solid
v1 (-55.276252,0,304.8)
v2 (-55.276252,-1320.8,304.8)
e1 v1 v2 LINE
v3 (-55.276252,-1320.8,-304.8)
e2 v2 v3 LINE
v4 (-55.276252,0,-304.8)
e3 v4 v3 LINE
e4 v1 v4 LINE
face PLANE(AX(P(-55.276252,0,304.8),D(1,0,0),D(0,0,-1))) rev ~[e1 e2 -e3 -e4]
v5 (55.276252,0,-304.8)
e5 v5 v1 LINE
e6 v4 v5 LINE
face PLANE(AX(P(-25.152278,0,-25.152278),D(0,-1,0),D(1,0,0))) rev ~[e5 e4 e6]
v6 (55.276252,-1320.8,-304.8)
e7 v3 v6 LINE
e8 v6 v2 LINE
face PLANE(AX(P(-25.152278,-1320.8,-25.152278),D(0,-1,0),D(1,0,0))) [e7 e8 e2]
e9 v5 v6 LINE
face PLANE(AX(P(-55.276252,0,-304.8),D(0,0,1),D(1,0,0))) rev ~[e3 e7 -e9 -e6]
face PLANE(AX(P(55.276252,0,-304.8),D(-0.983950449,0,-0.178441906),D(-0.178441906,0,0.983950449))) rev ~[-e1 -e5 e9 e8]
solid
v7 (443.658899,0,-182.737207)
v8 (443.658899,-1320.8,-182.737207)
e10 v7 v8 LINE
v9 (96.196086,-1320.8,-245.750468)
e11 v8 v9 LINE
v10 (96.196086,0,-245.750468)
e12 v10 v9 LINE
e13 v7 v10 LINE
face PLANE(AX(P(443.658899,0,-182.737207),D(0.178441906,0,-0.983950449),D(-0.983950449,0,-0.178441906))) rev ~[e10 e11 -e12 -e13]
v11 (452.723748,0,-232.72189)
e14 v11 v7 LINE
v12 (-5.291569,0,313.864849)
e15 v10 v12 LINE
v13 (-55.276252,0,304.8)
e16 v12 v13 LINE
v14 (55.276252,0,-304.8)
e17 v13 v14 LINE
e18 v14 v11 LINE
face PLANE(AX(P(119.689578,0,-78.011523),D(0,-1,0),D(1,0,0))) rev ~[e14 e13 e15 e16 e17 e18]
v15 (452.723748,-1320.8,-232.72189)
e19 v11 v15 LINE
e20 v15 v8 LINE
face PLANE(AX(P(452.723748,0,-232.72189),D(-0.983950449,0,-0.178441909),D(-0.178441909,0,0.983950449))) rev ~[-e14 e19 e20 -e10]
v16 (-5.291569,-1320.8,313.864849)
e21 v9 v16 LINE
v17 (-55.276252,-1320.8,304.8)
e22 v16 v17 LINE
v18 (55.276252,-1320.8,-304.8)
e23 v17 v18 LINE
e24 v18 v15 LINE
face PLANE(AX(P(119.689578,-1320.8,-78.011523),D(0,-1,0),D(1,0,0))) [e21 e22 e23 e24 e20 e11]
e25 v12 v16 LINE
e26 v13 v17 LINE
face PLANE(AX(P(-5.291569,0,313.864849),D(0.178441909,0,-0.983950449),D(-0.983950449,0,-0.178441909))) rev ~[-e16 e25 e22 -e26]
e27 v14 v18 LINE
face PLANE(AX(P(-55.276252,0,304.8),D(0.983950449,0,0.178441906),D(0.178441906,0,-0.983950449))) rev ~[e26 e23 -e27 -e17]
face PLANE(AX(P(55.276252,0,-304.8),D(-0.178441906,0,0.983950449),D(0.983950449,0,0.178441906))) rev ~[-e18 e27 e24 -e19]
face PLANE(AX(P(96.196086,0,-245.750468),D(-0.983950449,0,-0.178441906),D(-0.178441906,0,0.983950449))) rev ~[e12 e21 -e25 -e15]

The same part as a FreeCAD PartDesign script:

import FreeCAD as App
import Part
import Sketcher
Q = App.Units.Quantity


def add_polygon(sketch, points):
    """Adds a closed chain of lines whose ends are joined by coincident constraints."""
    first, n = sketch.GeometryCount, len(points)
    for a, b in zip(points, points[1:] + points[:1]):
        sketch.addGeometry(Part.LineSegment(App.Vector(*a, 0), App.Vector(*b, 0)), False)
    for i in range(n):
        sketch.addConstraint(Sketcher.Constraint("Coincident", first + i, 2, first + (i + 1) % n, 1))

doc = App.newDocument("Part")
body = doc.addObject("PartDesign::Body", "Body")

sketch1 = body.newObject("Sketcher::SketchObject", "Sketch")
sketch1.AttachmentSupport = (doc.getObject("XZ_Plane"), [""])
sketch1.MapMode = "FlatFace"
add_polygon(sketch1, [(-5, 314), (-55, 305), (55, -305), (453, -233), (444, -183), (96, -246)])
sketch1.addConstraint([
    Sketcher.Constraint("Symmetric", 0, 2, 1, 2, -1, 1),
    Sketcher.Constraint("Perpendicular", 0, 1),
    Sketcher.Constraint("Perpendicular", 1, 2),
    Sketcher.Constraint("Perpendicular", 2, 3),
    Sketcher.Constraint("Perpendicular", 3, 4),
    Sketcher.Constraint("Perpendicular", 4, 5),
    Sketcher.Constraint("Equal", 0, 3),
    Sketcher.Constraint("Distance", 0, Q("2 in")),
    Sketcher.Constraint("DistanceY", -1, 1, 0, 2, Q("12 in")),
    Sketcher.Constraint("DistanceX", 0, 2, 2, 2, Q("20 in")),
    Sketcher.Constraint("DistanceX", -1, 1, 3, 2, Q("443.658899 mm")),
])
pad1 = body.newObject("PartDesign::Pad", "Pad")
pad1.Profile = sketch1
pad1.Length = Q("52 in")
body2 = doc.addObject("PartDesign::Body", "Body001")

sketch2 = body2.newObject("Sketcher::SketchObject", "Sketch001")
sketch2.AttachmentSupport = (doc.getObject("XZ_Plane001"), [""])
sketch2.MapMode = "FlatFace"
add_polygon(sketch2, [(55, -305), (-55, 305), (-55, -305)])
sketch2.addConstraint([
    Sketcher.Constraint("Vertical", 1),
    Sketcher.Constraint("Horizontal", 2),
    Sketcher.Constraint("Symmetric", 0, 2, 2, 2, -1, 1),
    Sketcher.Constraint("DistanceY", 1, 2, 1, 1, Q("24 in")),
    Sketcher.Constraint("DistanceX", 2, 1, 2, 2, Q("110.552504 mm")),
])
pad2 = body2.newObject("PartDesign::Pad", "Pad001")
pad2.Profile = sketch2
pad2.Length = Q("52 in")

doc.recompute()
